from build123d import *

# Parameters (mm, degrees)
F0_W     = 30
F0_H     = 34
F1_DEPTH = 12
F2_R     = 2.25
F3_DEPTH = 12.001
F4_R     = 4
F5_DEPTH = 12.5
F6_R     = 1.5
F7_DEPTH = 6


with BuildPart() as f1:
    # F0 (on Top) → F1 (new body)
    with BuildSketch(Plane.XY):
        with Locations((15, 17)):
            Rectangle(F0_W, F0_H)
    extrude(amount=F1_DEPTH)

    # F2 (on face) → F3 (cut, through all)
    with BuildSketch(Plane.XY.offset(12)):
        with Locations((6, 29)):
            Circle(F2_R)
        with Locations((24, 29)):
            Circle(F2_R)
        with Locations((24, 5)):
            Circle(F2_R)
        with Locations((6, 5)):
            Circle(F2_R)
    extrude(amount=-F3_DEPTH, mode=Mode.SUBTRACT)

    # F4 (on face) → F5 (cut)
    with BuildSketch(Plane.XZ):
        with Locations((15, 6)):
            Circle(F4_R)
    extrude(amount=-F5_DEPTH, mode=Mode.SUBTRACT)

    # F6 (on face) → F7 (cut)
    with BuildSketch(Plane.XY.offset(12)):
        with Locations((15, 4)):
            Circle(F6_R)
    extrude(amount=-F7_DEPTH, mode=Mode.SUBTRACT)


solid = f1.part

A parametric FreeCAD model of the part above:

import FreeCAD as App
import Part
import Sketcher
Q = App.Units.Quantity


def add_polygon(sketch, points):
    """Adds a closed chain of lines whose ends are joined by coincident constraints."""
    first, n = sketch.GeometryCount, len(points)
    for a, b in zip(points, points[1:] + points[:1]):
        sketch.addGeometry(Part.LineSegment(App.Vector(*a, 0), App.Vector(*b, 0)), False)
    for i in range(n):
        sketch.addConstraint(Sketcher.Constraint("Coincident", first + i, 2, first + (i + 1) % n, 1))

doc = App.newDocument("Part")
body = doc.addObject("PartDesign::Body", "Body")

# Sketch on XY plane
sketch1 = body.newObject("Sketcher::SketchObject", "Sketch")
sketch1.AttachmentSupport = (doc.getObject("XY_Plane"), [""])
sketch1.MapMode = "FlatFace"
add_polygon(sketch1, [(0, 34), (0, 0), (30, 0), (30, 34)])  # lines 0-3
sketch1.addConstraint([
    Sketcher.Constraint("Vertical", 0),
    Sketcher.Constraint("Horizontal", 1),
    Sketcher.Constraint("Vertical", 2),
    Sketcher.Constraint("Horizontal", 3),
    Sketcher.Constraint("Coincident", 0, 2, -1, 1),
    Sketcher.Constraint("DistanceX", 1, 1, 1, 2, Q("30 mm")),
    Sketcher.Constraint("DistanceY", 0, 2, 0, 1, Q("34 mm")),
])
pad1 = body.newObject("PartDesign::Pad", "Pad")
pad1.Profile = sketch1
pad1.Length = 12

# Sketch on XY plane
sketch2 = body.newObject("Sketcher::SketchObject", "Sketch001")
sketch2.AttachmentSupport = (doc.getObject("XY_Plane"), [""])
sketch2.MapMode = "FlatFace"
sketch2.AttachmentOffset = App.Placement(App.Vector(0, 0, 12), App.Rotation())
sketch2.addGeometry([
    Part.Circle(App.Vector(6, 29, 0), App.Vector(0, 0, 1), 2.2),
    Part.Circle(App.Vector(24, 29, 0), App.Vector(0, 0, 1), 2.2),
    Part.Circle(App.Vector(24, 5, 0), App.Vector(0, 0, 1), 2.2),
    Part.Circle(App.Vector(6, 5, 0), App.Vector(0, 0, 1), 2.2),
], False)
sketch2.addConstraint([
    Sketcher.Constraint("Equal", 0, 1),
    Sketcher.Constraint("Equal", 1, 2),
    Sketcher.Constraint("Equal", 2, 3),
    Sketcher.Constraint("Horizontal", 0, 3, 1, 3),
    Sketcher.Constraint("Horizontal", 2, 3, 3, 3),
    Sketcher.Constraint("Vertical", 1, 3, 2, 3),
    Sketcher.Constraint("Vertical", 0, 3, 3, 3),
    Sketcher.Constraint("Diameter", 0, Q("4.5 mm")),
    Sketcher.Constraint("DistanceX", -1, 1, 0, 3, Q("6 mm")),
    Sketcher.Constraint("DistanceY", -1, 1, 0, 3, Q("29 mm")),
    Sketcher.Constraint("DistanceX", -1, 1, 1, 3, Q("24 mm")),
    Sketcher.Constraint("DistanceY", -1, 1, 2, 3, Q("5 mm")),
])
pocket1 = body.newObject("PartDesign::Pocket", "Pocket")
pocket1.Profile = sketch2
pocket1.Type = "ThroughAll"

# Sketch on XZ plane
sketch3 = body.newObject("Sketcher::SketchObject", "Sketch002")
sketch3.AttachmentSupport = (doc.getObject("XZ_Plane"), [""])
sketch3.MapMode = "FlatFace"
sketch3.addGeometry(Part.Circle(App.Vector(15, 6, 0), App.Vector(0, 0, 1), 4), False)
sketch3.addConstraint([
    Sketcher.Constraint("Diameter", 0, Q("8 mm")),
    Sketcher.Constraint("DistanceX", -1, 1, 0, 3, Q("15 mm")),
    Sketcher.Constraint("DistanceY", -1, 1, 0, 3, Q("6 mm")),
])
pocket2 = body.newObject("PartDesign::Pocket", "Pocket001")
pocket2.Profile = sketch3
pocket2.Length = 12.5

# Sketch on XY plane
sketch4 = body.newObject("Sketcher::SketchObject", "Sketch003")
sketch4.AttachmentSupport = (doc.getObject("XY_Plane"), [""])
sketch4.MapMode = "FlatFace"
sketch4.AttachmentOffset = App.Placement(App.Vector(0, 0, 12), App.Rotation())
sketch4.addGeometry(Part.Circle(App.Vector(15, 4, 0), App.Vector(0, 0, 1), 1.5), False)
sketch4.addConstraint([
    Sketcher.Constraint("Diameter", 0, Q("3 mm")),
    Sketcher.Constraint("DistanceX", -1, 1, 0, 3, Q("15 mm")),
    Sketcher.Constraint("DistanceY", -1, 1, 0, 3, Q("4 mm")),
])
pocket3 = body.newObject("PartDesign::Pocket", "Pocket002")
pocket3.Profile = sketch4
pocket3.Length = 6

doc.recompute()
